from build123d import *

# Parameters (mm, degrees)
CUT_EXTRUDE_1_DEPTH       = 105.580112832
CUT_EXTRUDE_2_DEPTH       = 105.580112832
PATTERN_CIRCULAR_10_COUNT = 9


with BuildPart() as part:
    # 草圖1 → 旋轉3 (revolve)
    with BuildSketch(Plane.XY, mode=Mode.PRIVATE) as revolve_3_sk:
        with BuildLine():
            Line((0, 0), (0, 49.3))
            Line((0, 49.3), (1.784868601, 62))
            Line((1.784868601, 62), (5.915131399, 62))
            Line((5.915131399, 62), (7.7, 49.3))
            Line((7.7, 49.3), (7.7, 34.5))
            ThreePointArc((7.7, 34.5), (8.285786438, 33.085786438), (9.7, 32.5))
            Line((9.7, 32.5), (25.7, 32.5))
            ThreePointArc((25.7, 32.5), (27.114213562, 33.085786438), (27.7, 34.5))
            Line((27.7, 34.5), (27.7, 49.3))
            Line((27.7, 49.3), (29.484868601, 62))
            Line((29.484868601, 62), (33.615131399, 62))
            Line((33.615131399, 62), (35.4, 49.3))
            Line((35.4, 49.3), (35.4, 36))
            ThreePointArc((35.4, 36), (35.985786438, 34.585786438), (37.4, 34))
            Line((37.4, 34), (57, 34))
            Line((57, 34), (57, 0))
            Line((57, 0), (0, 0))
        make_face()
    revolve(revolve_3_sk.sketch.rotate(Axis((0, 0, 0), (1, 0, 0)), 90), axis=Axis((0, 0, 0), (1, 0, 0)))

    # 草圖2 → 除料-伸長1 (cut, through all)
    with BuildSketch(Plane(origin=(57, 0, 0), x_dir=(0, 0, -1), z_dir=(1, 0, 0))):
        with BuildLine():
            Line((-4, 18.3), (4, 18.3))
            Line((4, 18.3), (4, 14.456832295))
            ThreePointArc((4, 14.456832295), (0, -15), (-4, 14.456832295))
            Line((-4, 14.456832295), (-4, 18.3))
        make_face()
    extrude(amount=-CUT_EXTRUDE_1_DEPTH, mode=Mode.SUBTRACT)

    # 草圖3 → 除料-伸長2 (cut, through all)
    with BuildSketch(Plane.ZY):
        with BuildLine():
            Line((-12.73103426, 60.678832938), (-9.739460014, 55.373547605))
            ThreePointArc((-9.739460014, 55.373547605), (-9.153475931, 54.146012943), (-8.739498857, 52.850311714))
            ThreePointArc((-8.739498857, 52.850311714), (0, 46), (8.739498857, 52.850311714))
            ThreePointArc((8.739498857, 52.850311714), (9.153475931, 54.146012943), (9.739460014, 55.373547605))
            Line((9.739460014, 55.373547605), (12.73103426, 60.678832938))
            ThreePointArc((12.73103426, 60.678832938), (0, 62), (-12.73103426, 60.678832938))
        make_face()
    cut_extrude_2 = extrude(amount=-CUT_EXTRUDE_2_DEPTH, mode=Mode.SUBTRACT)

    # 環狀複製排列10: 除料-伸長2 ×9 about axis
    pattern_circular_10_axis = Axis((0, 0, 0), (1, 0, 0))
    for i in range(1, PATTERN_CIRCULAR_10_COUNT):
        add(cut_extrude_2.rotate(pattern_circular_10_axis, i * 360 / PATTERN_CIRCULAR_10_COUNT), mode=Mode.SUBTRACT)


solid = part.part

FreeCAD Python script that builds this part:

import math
import FreeCAD as App
import Part
import Sketcher

V = App.Vector
Q = App.Units.Quantity

doc = App.newDocument("Part")
body = doc.addObject("PartDesign::Body", "Body")

sketch1 = body.newObject("Sketcher::SketchObject", "Sketch")
sketch1.AttachmentSupport = (doc.getObject("XY_Plane"), [""])
sketch1.MapMode = "FlatFace"
sketch1.addGeometry(Part.LineSegment(V(0, 49.3, 0), V(0, 0, 0)), False)
sketch1.addGeometry(Part.LineSegment(V(0, 0, 0), V(57, 0, 0)), False)
sketch1.addGeometry(Part.LineSegment(V(57, 0, 0), V(57, 34, 0)), False)
sketch1.addGeometry(Part.LineSegment(V(57, 34, 0), V(37.4, 34, 0)), False)
sketch1.addGeometry(Part.ArcOfCircle(Part.Circle(V(37.4, 36, 0), V(0, 0, 1), 2), math.radians(-180), math.radians(-90)), False)
sketch1.addGeometry(Part.LineSegment(V(35.4, 36, 0), V(35.4, 49.3, 0)), False)
sketch1.addGeometry(Part.LineSegment(V(35.4, 49.3, 0), V(33.615131, 62, 0)), False)
sketch1.addGeometry(Part.LineSegment(V(33.615131, 62, 0), V(29.484869, 62, 0)), False)
sketch1.addGeometry(Part.LineSegment(V(29.484869, 62, 0), V(27.7, 49.3, 0)), False)
sketch1.addGeometry(Part.LineSegment(V(27.7, 49.3, 0), V(27.7, 34.5, 0)), False)
sketch1.addGeometry(Part.ArcOfCircle(Part.Circle(V(25.7, 34.5, 0), V(0, 0, 1), 2), math.radians(-90), math.radians(0)), False)
sketch1.addGeometry(Part.LineSegment(V(25.7, 32.5, 0), V(9.7, 32.5, 0)), False)
sketch1.addGeometry(Part.ArcOfCircle(Part.Circle(V(9.7, 34.5, 0), V(0, 0, 1), 2), math.radians(-180), math.radians(-90)), False)
sketch1.addGeometry(Part.LineSegment(V(7.7, 34.5, 0), V(7.7, 49.3, 0)), False)
sketch1.addGeometry(Part.LineSegment(V(7.7, 49.3, 0), V(5.915131, 62, 0)), False)
sketch1.addGeometry(Part.LineSegment(V(5.915131, 62, 0), V(1.784869, 62, 0)), False)
sketch1.addGeometry(Part.LineSegment(V(1.784869, 62, 0), V(0, 49.3, 0)), False)
sketch1.addConstraint(Sketcher.Constraint("Coincident", 0, 2, 1, 1))
sketch1.addConstraint(Sketcher.Constraint("Coincident", 1, 2, 2, 1))
sketch1.addConstraint(Sketcher.Constraint("Coincident", 2, 2, 3, 1))
sketch1.addConstraint(Sketcher.Constraint("Tangent", 3, 2, 4, 2))
sketch1.addConstraint(Sketcher.Constraint("Tangent", 4, 1, 5, 1))
sketch1.addConstraint(Sketcher.Constraint("Coincident", 5, 2, 6, 1))
sketch1.addConstraint(Sketcher.Constraint("Coincident", 6, 2, 7, 1))
sketch1.addConstraint(Sketcher.Constraint("Coincident", 7, 2, 8, 1))
sketch1.addConstraint(Sketcher.Constraint("Coincident", 8, 2, 9, 1))
sketch1.addConstraint(Sketcher.Constraint("Tangent", 9, 2, 10, 2))
sketch1.addConstraint(Sketcher.Constraint("Tangent", 10, 1, 11, 1))
sketch1.addConstraint(Sketcher.Constraint("Tangent", 11, 2, 12, 2))
sketch1.addConstraint(Sketcher.Constraint("Tangent", 12, 1, 13, 1))
sketch1.addConstraint(Sketcher.Constraint("Coincident", 13, 2, 14, 1))
sketch1.addConstraint(Sketcher.Constraint("Coincident", 14, 2, 15, 1))
sketch1.addConstraint(Sketcher.Constraint("Coincident", 15, 2, 16, 1))
sketch1.addConstraint(Sketcher.Constraint("Coincident", 16, 2, 0, 1))
sketch1.addConstraint(Sketcher.Constraint("Vertical", 0))
sketch1.addConstraint(Sketcher.Constraint("Horizontal", 1))
sketch1.addConstraint(Sketcher.Constraint("Vertical", 2))
sketch1.addConstraint(Sketcher.Constraint("Horizontal", 3))
sketch1.addConstraint(Sketcher.Constraint("Vertical", 5))
sketch1.addConstraint(Sketcher.Constraint("Horizontal", 7))
sketch1.addConstraint(Sketcher.Constraint("Vertical", 9))
sketch1.addConstraint(Sketcher.Constraint("Horizontal", 11))
sketch1.addConstraint(Sketcher.Constraint("Vertical", 13))
sketch1.addConstraint(Sketcher.Constraint("Horizontal", 15))
sketch1.addConstraint(Sketcher.Constraint("Coincident", 0, 2, -1, 1))
sketch1.addConstraint(Sketcher.Constraint("Equal", 4, 10))
sketch1.addConstraint(Sketcher.Constraint("Equal", 10, 12))
sketch1.addConstraint(Sketcher.Constraint("Parallel", 6, 14))
sketch1.addConstraint(Sketcher.Constraint("Parallel", 8, 16))
sketch1.addConstraint(Sketcher.Constraint("Horizontal", 5, 2, 8, 2))
sketch1.addConstraint(Sketcher.Constraint("Horizontal", 8, 2, 13, 2))
sketch1.addConstraint(Sketcher.Constraint("Horizontal", 7, 2, 14, 2))
sketch1.addConstraint(Sketcher.Constraint("Horizontal", 13, 2, 16, 2))
sketch1.addConstraint(Sketcher.Constraint("Equal", 7, 15))
sketch1.addConstraint(Sketcher.Constraint("Equal", 6, 8))
sketch1.addConstraint(Sketcher.Constraint("Radius", 4, 2.0))
sketch1.addConstraint(Sketcher.Constraint("DistanceX", 1, 1, 1, 2, 57.0))
sketch1.addConstraint(Sketcher.Constraint("DistanceX", 11, 2, 11, 1, 16.0))
sketch1.addConstraint(Sketcher.Constraint("DistanceY", 2, 1, 2, 2, 34.0))
sketch1.addConstraint(Sketcher.Constraint("Angle", 6, Q("98 deg")))
sketch1.addConstraint(Sketcher.Constraint("DistanceX", 3, 2, 3, 1, 19.6))
sketch1.addConstraint(Sketcher.Constraint("DistanceY", 0, 2, 0, 1, 49.3))
sketch1.addConstraint(Sketcher.Constraint("DistanceY", 9, 2, 9, 1, 14.8))
sketch1.addConstraint(Sketcher.Constraint("DistanceY", -1, 1, 6, 2, 62.0))
revolution = body.newObject("PartDesign::Revolution", "Revolution")
revolution.Profile = sketch1
revolution.ReferenceAxis = (sketch1, ["H_Axis"])
revolution.Angle = 360

sketch2 = body.newObject("Sketcher::SketchObject", "Sketch001")
sketch2.AttachmentSupport = (doc.getObject("YZ_Plane"), [""])
sketch2.MapMode = "FlatFace"
sketch2.AttachmentOffset = App.Placement(V(0, 0, 57), App.Rotation())
sketch2.addGeometry(Part.LineSegment(V(18.3, -4, 0), V(18.3, 4, 0)), False)
sketch2.addGeometry(Part.LineSegment(V(18.3, 4, 0), V(14.456832, 4, 0)), False)
sketch2.addGeometry(Part.ArcOfCircle(Part.Circle(V(0, 0, 0), V(0, 0, 1), 15), math.radians(15.46601), math.radians(344.53399)), False)
sketch2.addGeometry(Part.LineSegment(V(14.456832, -4, 0), V(18.3, -4, 0)), False)
sketch2.addConstraint(Sketcher.Constraint("Coincident", 0, 2, 1, 1))
sketch2.addConstraint(Sketcher.Constraint("Coincident", 1, 2, 2, 1))
sketch2.addConstraint(Sketcher.Constraint("Coincident", 2, 2, 3, 1))
sketch2.addConstraint(Sketcher.Constraint("Coincident", 3, 2, 0, 1))
sketch2.addConstraint(Sketcher.Constraint("Vertical", 0))
sketch2.addConstraint(Sketcher.Constraint("Horizontal", 1))
sketch2.addConstraint(Sketcher.Constraint("Horizontal", 3))
sketch2.addConstraint(Sketcher.Constraint("Coincident", 2, 3, -1, 1))
sketch2.addConstraint(Sketcher.Constraint("Vertical", 1, 2, 2, 2))
sketch2.addConstraint(Sketcher.Constraint("Radius", 2, 15.0))
sketch2.addConstraint(Sketcher.Constraint("DistanceY", 0, 1, 0, 2, 8.0))
sketch2.addConstraint(Sketcher.Constraint("DistanceX", -1, 1, 0, 2, 18.3))
pocket1 = body.newObject("PartDesign::Pocket", "Pocket")
pocket1.Profile = sketch2
pocket1.Type = "ThroughAll"

sketch3 = body.newObject("Sketcher::SketchObject", "Sketch002")
sketch3.AttachmentSupport = (doc.getObject("YZ_Plane"), [""])
sketch3.MapMode = "FlatFace"
sketch3.addGeometry(Part.LineSegment(V(60.678833, -12.731034, 0), V(55.373548, -9.73946, 0)), False)
sketch3.addGeometry(Part.ArcOfCircle(Part.Circle(V(50.461769, -18.450053, 0), V(0, 0, 1), 10), math.radians(60.581973), math.radians(76.181073)), False)
sketch3.addGeometry(Part.ArcOfCircle(Part.Circle(V(55, 0, 0), V(0, 0, 1), 9), math.radians(103.818927), math.radians(256.181073)), False)
sketch3.addGeometry(Part.ArcOfCircle(Part.Circle(V(50.461769, 18.450053, 0), V(0, 0, 1), 10), math.radians(-76.181073), math.radians(-60.581973)), False)
sketch3.addGeometry(Part.LineSegment(V(55.373548, 9.73946, 0), V(60.678833, 12.731034, 0)), False)
sketch3.addGeometry(Part.ArcOfCircle(Part.Circle(V(0, 0, 0), V(0, 0, 1), 62), math.radians(-11.84936), math.radians(11.84936)), False)
sketch3.addConstraint(Sketcher.Constraint("Tangent", 0, 2, 1, 1))
sketch3.addConstraint(Sketcher.Constraint("Tangent", 1, 2, 2, 2))
sketch3.addConstraint(Sketcher.Constraint("Tangent", 2, 1, 3, 1))
sketch3.addConstraint(Sketcher.Constraint("Tangent", 3, 2, 4, 1))
sketch3.addConstraint(Sketcher.Constraint("Coincident", 4, 2, 5, 2))
sketch3.addConstraint(Sketcher.Constraint("Coincident", 5, 1, 0, 1))
sketch3.addConstraint(Sketcher.Constraint("Coincident", 5, 3, -1, 1))
sketch3.addConstraint(Sketcher.Constraint("Equal", 1, 3))
sketch3.addConstraint(Sketcher.Constraint("Symmetric", 1, 3, 3, 3, -1))
sketch3.addConstraint(Sketcher.Constraint("Vertical", 0, 2, 3, 2))
sketch3.addConstraint(Sketcher.Constraint("Radius", 1, 10.0))
sketch3.addConstraint(Sketcher.Constraint("Radius", 2, 9.0))
sketch3.addConstraint(Sketcher.Constraint("Radius", 5, 62.0))
sketch3.addConstraint(Sketcher.Constraint("DistanceX", -1, 1, 2, 3, 55.0))
sketch3.addConstraint(Sketcher.Constraint("DistanceY", 1, 2, -1, 1, 8.739499))
sketch3.addConstraint(Sketcher.Constraint("DistanceY", 0, 2, -1, 1, 9.73946))
pocket2 = body.newObject("PartDesign::Pocket", "Pocket001")
pocket2.Profile = sketch3
pocket2.Type = "ThroughAll"
pocket2.Reversed = True
doc.recompute()

polarpattern = body.newObject("PartDesign::PolarPattern", "PolarPattern")
polarpattern.Originals = [pocket2]
polarpattern.Axis = (doc.getObject("X_Axis"), [""])
polarpattern.Angle = 360
polarpattern.Occurrences = 9
body.Tip = polarpattern

doc.recompute()
